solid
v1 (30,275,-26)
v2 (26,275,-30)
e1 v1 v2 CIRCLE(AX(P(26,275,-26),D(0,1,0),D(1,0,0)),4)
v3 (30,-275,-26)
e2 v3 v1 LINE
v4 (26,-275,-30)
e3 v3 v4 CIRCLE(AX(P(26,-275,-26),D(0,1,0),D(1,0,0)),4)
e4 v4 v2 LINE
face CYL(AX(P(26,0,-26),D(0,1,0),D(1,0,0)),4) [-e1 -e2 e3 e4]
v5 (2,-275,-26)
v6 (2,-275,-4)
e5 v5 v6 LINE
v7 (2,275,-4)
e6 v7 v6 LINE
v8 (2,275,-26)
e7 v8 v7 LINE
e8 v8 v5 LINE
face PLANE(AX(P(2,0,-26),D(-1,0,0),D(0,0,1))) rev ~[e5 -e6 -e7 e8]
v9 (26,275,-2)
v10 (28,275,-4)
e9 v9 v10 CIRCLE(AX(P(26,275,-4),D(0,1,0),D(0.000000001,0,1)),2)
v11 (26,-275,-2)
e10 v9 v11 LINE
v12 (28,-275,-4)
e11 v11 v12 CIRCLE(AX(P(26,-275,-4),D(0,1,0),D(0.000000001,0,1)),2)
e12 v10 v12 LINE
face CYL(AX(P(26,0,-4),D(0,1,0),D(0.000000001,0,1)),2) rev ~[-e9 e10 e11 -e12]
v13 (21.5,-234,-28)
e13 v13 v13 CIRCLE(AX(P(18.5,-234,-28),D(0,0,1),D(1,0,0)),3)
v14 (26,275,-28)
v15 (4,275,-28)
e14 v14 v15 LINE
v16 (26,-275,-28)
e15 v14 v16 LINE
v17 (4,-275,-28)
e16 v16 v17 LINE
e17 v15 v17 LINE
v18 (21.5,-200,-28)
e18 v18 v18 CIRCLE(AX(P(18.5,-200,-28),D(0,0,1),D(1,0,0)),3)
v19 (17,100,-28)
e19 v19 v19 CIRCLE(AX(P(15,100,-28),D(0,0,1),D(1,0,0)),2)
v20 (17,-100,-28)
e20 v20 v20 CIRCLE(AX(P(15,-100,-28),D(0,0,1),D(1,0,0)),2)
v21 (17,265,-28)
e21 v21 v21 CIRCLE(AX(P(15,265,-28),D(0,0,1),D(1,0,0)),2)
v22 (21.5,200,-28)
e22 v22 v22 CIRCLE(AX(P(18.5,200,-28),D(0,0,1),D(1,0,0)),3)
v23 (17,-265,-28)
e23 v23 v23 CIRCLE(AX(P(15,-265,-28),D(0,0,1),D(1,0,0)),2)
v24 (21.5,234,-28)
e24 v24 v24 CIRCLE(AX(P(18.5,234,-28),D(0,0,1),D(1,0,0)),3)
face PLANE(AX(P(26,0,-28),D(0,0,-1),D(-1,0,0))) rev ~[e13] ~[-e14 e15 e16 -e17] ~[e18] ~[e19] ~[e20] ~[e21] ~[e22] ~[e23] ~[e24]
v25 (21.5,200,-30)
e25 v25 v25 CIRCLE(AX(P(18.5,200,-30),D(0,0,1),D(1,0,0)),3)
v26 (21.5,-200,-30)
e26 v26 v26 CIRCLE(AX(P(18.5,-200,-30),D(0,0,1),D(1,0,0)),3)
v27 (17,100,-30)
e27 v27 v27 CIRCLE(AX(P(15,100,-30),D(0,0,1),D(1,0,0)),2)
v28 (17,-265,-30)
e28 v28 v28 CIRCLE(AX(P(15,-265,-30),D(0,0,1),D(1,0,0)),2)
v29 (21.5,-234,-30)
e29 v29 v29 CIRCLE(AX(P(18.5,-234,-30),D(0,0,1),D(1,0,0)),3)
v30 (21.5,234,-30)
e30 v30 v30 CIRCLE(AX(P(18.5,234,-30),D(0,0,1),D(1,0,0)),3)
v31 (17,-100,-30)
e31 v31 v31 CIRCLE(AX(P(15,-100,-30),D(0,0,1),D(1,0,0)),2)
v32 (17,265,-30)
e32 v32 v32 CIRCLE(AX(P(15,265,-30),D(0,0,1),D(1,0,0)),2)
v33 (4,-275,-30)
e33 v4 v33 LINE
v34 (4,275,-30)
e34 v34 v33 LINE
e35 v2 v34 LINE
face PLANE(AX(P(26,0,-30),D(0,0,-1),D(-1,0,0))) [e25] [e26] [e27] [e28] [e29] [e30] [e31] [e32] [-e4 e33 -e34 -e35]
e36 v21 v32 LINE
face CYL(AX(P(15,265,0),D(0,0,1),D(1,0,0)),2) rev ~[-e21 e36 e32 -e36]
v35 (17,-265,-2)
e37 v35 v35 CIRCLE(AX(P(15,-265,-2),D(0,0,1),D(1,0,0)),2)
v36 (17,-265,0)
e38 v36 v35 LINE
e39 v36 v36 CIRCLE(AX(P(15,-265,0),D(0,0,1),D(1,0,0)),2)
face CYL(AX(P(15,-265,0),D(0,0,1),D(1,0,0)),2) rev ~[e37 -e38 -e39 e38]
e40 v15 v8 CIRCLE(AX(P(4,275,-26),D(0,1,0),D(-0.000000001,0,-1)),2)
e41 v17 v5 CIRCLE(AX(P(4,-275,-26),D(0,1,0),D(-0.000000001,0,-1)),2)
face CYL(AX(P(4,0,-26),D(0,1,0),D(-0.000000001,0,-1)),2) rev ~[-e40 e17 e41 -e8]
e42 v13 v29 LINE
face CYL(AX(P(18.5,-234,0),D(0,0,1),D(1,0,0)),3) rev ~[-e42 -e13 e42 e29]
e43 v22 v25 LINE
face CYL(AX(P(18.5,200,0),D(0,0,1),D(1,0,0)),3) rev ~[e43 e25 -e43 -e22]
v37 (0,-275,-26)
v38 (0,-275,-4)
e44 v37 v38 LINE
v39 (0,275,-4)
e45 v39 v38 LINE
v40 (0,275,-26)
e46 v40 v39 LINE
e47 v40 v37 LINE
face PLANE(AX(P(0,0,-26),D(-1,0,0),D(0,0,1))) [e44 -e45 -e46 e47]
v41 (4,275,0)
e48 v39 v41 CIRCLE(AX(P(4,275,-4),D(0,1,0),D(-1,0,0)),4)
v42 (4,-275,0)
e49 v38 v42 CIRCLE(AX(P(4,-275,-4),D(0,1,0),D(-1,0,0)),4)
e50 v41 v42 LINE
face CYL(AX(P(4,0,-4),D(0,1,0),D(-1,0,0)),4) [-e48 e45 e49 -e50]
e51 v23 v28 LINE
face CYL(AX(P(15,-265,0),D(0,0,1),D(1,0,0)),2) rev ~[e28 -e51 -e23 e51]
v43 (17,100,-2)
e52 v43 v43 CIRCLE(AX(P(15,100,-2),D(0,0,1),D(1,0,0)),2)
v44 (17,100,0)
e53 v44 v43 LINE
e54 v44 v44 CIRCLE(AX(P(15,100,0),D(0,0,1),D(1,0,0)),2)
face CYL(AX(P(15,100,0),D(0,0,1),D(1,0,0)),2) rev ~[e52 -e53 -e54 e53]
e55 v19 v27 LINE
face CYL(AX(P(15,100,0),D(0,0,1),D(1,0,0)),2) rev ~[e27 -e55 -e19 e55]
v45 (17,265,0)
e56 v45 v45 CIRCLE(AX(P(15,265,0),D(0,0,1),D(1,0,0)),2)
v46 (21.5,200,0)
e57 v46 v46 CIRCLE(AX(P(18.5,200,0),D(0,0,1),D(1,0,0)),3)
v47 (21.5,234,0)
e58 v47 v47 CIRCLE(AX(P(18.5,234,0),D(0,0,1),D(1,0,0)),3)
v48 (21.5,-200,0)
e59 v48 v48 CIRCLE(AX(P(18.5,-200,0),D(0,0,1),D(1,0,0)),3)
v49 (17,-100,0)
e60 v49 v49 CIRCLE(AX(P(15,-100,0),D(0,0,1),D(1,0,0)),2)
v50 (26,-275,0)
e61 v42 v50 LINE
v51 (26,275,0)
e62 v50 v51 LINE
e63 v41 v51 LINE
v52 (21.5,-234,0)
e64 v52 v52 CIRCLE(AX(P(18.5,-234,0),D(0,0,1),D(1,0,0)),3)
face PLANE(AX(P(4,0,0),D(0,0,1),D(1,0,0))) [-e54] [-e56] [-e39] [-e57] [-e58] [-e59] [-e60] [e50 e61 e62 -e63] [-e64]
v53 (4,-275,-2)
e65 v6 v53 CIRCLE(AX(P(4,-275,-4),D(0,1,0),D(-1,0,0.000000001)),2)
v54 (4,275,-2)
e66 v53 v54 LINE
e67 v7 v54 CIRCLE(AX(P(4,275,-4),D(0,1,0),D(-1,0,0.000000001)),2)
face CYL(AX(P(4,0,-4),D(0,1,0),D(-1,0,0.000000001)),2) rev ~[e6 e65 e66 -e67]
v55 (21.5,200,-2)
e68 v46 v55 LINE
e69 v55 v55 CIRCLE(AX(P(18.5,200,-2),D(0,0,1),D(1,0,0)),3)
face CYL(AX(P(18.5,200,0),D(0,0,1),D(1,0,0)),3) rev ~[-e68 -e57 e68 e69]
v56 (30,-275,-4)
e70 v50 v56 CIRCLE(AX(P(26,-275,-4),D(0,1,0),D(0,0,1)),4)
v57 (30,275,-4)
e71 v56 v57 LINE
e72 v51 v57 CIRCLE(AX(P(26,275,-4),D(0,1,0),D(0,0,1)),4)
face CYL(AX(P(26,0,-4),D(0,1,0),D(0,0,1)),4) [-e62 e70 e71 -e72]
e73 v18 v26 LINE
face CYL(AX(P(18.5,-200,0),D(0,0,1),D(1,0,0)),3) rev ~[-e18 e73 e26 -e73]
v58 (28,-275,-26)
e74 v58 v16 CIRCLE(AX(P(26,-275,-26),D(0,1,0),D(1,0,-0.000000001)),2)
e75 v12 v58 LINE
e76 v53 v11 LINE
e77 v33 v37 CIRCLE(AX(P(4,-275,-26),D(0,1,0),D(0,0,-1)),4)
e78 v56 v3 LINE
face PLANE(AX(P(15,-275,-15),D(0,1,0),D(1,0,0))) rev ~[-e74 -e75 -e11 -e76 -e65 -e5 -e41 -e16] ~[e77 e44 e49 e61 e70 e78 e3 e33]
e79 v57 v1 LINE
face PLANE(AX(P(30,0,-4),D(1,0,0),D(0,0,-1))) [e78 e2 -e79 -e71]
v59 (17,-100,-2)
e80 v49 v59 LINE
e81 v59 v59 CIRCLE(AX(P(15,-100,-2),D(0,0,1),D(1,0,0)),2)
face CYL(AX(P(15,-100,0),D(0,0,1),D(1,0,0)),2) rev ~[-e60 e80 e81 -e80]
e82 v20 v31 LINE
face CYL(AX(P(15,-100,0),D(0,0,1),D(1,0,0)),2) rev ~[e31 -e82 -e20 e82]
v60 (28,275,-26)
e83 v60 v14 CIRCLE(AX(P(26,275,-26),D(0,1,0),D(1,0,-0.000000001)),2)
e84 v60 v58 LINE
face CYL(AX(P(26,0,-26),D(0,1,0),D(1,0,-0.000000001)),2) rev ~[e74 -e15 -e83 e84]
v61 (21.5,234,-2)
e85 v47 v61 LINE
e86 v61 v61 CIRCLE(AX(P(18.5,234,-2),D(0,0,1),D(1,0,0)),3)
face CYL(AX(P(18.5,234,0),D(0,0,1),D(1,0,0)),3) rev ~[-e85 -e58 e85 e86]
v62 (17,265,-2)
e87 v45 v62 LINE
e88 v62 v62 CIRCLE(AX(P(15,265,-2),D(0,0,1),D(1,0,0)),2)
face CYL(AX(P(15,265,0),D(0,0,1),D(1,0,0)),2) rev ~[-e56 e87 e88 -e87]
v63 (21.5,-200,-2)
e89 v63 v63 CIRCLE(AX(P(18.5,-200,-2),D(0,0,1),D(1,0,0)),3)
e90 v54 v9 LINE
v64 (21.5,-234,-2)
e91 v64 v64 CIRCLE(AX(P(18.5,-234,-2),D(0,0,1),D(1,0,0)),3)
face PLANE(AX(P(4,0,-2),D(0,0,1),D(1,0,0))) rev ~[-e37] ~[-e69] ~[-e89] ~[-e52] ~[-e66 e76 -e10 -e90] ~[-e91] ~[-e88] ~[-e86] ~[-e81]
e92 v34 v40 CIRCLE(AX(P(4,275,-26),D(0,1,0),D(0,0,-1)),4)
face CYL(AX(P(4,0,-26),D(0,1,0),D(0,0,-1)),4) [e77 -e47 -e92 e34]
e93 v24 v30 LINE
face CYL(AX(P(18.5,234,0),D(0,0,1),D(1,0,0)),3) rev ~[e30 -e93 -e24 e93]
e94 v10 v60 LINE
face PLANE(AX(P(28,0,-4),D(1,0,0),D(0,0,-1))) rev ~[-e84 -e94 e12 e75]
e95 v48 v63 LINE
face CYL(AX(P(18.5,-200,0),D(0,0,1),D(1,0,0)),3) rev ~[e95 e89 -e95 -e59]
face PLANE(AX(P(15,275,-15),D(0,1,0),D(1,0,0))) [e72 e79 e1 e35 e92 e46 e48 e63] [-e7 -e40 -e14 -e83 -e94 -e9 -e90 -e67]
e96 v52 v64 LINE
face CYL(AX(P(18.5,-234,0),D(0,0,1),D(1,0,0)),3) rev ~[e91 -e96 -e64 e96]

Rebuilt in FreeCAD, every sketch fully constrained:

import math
import FreeCAD as App
import Part
import Sketcher
from FreeCAD import Vector
Q = App.Units.Quantity

doc = App.newDocument("Part")
body = doc.addObject("PartDesign::Body", "Body")

# Sketch on XZ plane
sketch1 = doc.addObject("Sketcher::SketchObject", "Sketch")
body.addObject(sketch1)
sketch1.AttachmentSupport = (doc.XZ_Plane, [""])
sketch1.MapMode = "FlatFace"
sketch1.addGeometry(Part.LineSegment(Vector(4, 0, 0), Vector(26, 0, 0)), False)
sketch1.addGeometry(Part.ArcOfCircle(Part.Circle(Vector(26, -4, 0), Vector(0, 0, 1), 4), math.radians(0), math.radians(90)), False)
sketch1.addGeometry(Part.LineSegment(Vector(30, -4, 0), Vector(30, -26, 0)), False)
sketch1.addGeometry(Part.ArcOfCircle(Part.Circle(Vector(26, -26, 0), Vector(0, 0, 1), 4), math.radians(-90), math.radians(0)), False)
sketch1.addGeometry(Part.LineSegment(Vector(26, -30, 0), Vector(4, -30, 0)), False)
sketch1.addGeometry(Part.ArcOfCircle(Part.Circle(Vector(4, -26, 0), Vector(0, 0, 1), 4), math.radians(180), math.radians(270)), False)
sketch1.addGeometry(Part.LineSegment(Vector(0, -26, 0), Vector(0, -4, 0)), False)
sketch1.addGeometry(Part.ArcOfCircle(Part.Circle(Vector(4, -4, 0), Vector(0, 0, 1), 4), math.radians(90), math.radians(180)), False)
sketch1.addGeometry(Part.LineSegment(Vector(26, -2, 0), Vector(4, -2, 0)), False)
sketch1.addGeometry(Part.ArcOfCircle(Part.Circle(Vector(4, -4, 0), Vector(0, 0, 1), 2), math.radians(90), math.radians(180)), False)
sketch1.addGeometry(Part.LineSegment(Vector(2, -4, 0), Vector(2, -26, 0)), False)
sketch1.addGeometry(Part.ArcOfCircle(Part.Circle(Vector(4, -26, 0), Vector(0, 0, 1), 2), math.radians(-180), math.radians(-90)), False)
sketch1.addGeometry(Part.LineSegment(Vector(4, -28, 0), Vector(26, -28, 0)), False)
sketch1.addGeometry(Part.ArcOfCircle(Part.Circle(Vector(26, -26, 0), Vector(0, 0, 1), 2), math.radians(-90), math.radians(0)), False)
sketch1.addGeometry(Part.LineSegment(Vector(28, -26, 0), Vector(28, -4, 0)), False)
sketch1.addGeometry(Part.ArcOfCircle(Part.Circle(Vector(26, -4, 0), Vector(0, 0, 1), 2), math.radians(0), math.radians(90)), False)
sketch1.addConstraint(Sketcher.Constraint("Tangent", 0, 2, 1, 2))
sketch1.addConstraint(Sketcher.Constraint("Tangent", 1, 1, 2, 1))
sketch1.addConstraint(Sketcher.Constraint("Tangent", 2, 2, 3, 2))
sketch1.addConstraint(Sketcher.Constraint("Tangent", 3, 1, 4, 1))
sketch1.addConstraint(Sketcher.Constraint("Tangent", 4, 2, 5, 2))
sketch1.addConstraint(Sketcher.Constraint("Tangent", 5, 1, 6, 1))
sketch1.addConstraint(Sketcher.Constraint("Tangent", 6, 2, 7, 2))
sketch1.addConstraint(Sketcher.Constraint("Tangent", 7, 1, 0, 1))
sketch1.addConstraint(Sketcher.Constraint("Tangent", 8, 2, 9, 1))
sketch1.addConstraint(Sketcher.Constraint("Tangent", 9, 2, 10, 1))
sketch1.addConstraint(Sketcher.Constraint("Tangent", 10, 2, 11, 1))
sketch1.addConstraint(Sketcher.Constraint("Tangent", 11, 2, 12, 1))
sketch1.addConstraint(Sketcher.Constraint("Tangent", 12, 2, 13, 1))
sketch1.addConstraint(Sketcher.Constraint("Tangent", 13, 2, 14, 1))
sketch1.addConstraint(Sketcher.Constraint("Tangent", 14, 2, 15, 1))
sketch1.addConstraint(Sketcher.Constraint("Tangent", 15, 2, 8, 1))
sketch1.addConstraint(Sketcher.Constraint("Horizontal", 0))
sketch1.addConstraint(Sketcher.Constraint("Vertical", 2))
sketch1.addConstraint(Sketcher.Constraint("Horizontal", 4))
sketch1.addConstraint(Sketcher.Constraint("Vertical", 6))
sketch1.addConstraint(Sketcher.Constraint("Horizontal", 8))
sketch1.addConstraint(Sketcher.Constraint("Vertical", 10))
sketch1.addConstraint(Sketcher.Constraint("Horizontal", 12))
sketch1.addConstraint(Sketcher.Constraint("Vertical", 14))
sketch1.addConstraint(Sketcher.Constraint("Coincident", 9, 3, 7, 3))
sketch1.addConstraint(Sketcher.Constraint("Coincident", 11, 3, 5, 3))
sketch1.addConstraint(Sketcher.Constraint("Coincident", 13, 3, 3, 3))
sketch1.addConstraint(Sketcher.Constraint("Equal", 1, 3))
sketch1.addConstraint(Sketcher.Constraint("Equal", 3, 5))
sketch1.addConstraint(Sketcher.Constraint("Equal", 5, 7))
sketch1.addConstraint(Sketcher.Constraint("Equal", 13, 15))
sketch1.addConstraint(Sketcher.Constraint("PointOnObject", 0, 2, -1))
sketch1.addConstraint(Sketcher.Constraint("PointOnObject", 5, 1, -2))
sketch1.addConstraint(Sketcher.Constraint("Equal", 12, 2))
sketch1.addConstraint(Sketcher.Constraint("Radius", 1, Q("4 mm")))
sketch1.addConstraint(Sketcher.Constraint("Radius", 9, Q("2 mm")))
sketch1.addConstraint(Sketcher.Constraint("DistanceX", 0, 1, 0, 2, Q("22 mm")))
pad1 = doc.addObject("PartDesign::Pad", "Pad")
body.addObject(pad1)
pad1.Profile = sketch1
pad1.Length = 550
pad1.Midplane = True

# Sketch on XY plane
sketch2 = doc.addObject("Sketcher::SketchObject", "Sketch001")
body.addObject(sketch2)
sketch2.AttachmentSupport = (doc.XY_Plane, [""])
sketch2.MapMode = "FlatFace"
sketch2.addGeometry(Part.Circle(Vector(18.5, 234, 0), Vector(0, 0, 1), 3), False)
sketch2.addGeometry(Part.Circle(Vector(18.5, 200, 0), Vector(0, 0, 1), 3), False)
sketch2.addGeometry(Part.Circle(Vector(18.5, -200, 0), Vector(0, 0, 1), 3), False)
sketch2.addGeometry(Part.Circle(Vector(18.5, -234, 0), Vector(0, 0, 1), 3), False)
sketch2.addGeometry(Part.Circle(Vector(15, 265, 0), Vector(0, 0, 1), 2), False)
sketch2.addGeometry(Part.Circle(Vector(15, 100, 0), Vector(0, 0, 1), 2), False)
sketch2.addGeometry(Part.Circle(Vector(15, -100, 0), Vector(0, 0, 1), 2), False)
sketch2.addGeometry(Part.Circle(Vector(15, -265, 0), Vector(0, 0, 1), 2), False)
sketch2.addConstraint(Sketcher.Constraint("Equal", 0, 1))
sketch2.addConstraint(Sketcher.Constraint("Equal", 1, 2))
sketch2.addConstraint(Sketcher.Constraint("Equal", 2, 3))
sketch2.addConstraint(Sketcher.Constraint("Equal", 4, 5))
sketch2.addConstraint(Sketcher.Constraint("Equal", 5, 6))
sketch2.addConstraint(Sketcher.Constraint("Equal", 6, 7))
sketch2.addConstraint(Sketcher.Constraint("Symmetric", 1, 3, 2, 3, -1))
sketch2.addConstraint(Sketcher.Constraint("Symmetric", 0, 3, 3, 3, -1))
sketch2.addConstraint(Sketcher.Constraint("Symmetric", 5, 3, 6, 3, -1))
sketch2.addConstraint(Sketcher.Constraint("Symmetric", 4, 3, 7, 3, -1))
sketch2.addConstraint(Sketcher.Constraint("Vertical", 0, 3, 1, 3))
sketch2.addConstraint(Sketcher.Constraint("Vertical", 4, 3, 5, 3))
sketch2.addConstraint(Sketcher.Constraint("Diameter", 0, Q("6 mm")))
sketch2.addConstraint(Sketcher.Constraint("Diameter", 4, Q("4 mm")))
sketch2.addConstraint(Sketcher.Constraint("DistanceY", -1, 1, 0, 3, Q("234 mm")))
sketch2.addConstraint(Sketcher.Constraint("DistanceY", -1, 1, 1, 3, Q("200 mm")))
sketch2.addConstraint(Sketcher.Constraint("DistanceX", -1, 1, 4, 3, Q("15 mm")))
sketch2.addConstraint(Sketcher.Constraint("DistanceY", -1, 1, 4, 3, Q("265 mm")))
sketch2.addConstraint(Sketcher.Constraint("DistanceY", -1, 1, 5, 3, Q("100 mm")))
sketch2.addConstraint(Sketcher.Constraint("DistanceX", -1, 1, 0, 3, Q("18.5 mm")))
pocket1 = doc.addObject("PartDesign::Pocket", "Pocket")
body.addObject(pocket1)
pocket1.Profile = sketch2
pocket1.Type = "ThroughAll"

doc.recompute()
